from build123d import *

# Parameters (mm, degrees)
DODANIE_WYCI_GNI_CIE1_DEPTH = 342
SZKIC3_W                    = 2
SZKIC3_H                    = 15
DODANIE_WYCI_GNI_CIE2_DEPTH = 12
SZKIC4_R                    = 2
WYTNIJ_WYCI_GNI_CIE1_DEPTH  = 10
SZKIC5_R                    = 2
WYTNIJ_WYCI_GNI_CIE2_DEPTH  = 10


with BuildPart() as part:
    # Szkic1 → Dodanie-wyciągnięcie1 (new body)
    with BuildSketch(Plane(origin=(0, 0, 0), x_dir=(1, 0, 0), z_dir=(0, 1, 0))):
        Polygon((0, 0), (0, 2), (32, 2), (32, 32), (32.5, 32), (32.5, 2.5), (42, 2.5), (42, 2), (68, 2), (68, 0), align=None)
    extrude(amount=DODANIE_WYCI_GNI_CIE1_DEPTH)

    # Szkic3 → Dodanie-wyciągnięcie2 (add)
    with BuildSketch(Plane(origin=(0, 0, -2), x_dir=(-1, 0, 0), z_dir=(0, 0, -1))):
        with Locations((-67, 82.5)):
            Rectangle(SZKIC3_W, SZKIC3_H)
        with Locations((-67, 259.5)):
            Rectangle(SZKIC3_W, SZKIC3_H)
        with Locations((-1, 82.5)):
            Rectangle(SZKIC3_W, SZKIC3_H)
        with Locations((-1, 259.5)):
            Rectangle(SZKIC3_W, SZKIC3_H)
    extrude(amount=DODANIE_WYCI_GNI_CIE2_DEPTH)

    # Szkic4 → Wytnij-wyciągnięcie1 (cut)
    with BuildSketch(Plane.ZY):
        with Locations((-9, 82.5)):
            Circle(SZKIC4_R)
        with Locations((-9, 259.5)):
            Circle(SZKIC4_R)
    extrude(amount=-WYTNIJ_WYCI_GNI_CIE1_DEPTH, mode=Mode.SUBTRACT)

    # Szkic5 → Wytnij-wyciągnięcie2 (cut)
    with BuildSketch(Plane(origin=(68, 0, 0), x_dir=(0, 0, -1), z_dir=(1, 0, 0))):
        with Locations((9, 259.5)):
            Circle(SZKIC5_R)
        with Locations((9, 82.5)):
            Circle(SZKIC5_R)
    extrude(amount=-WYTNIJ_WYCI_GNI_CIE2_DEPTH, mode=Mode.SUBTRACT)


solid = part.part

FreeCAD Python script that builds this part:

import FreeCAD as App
import Part
import Sketcher
from FreeCAD import Vector
Q = App.Units.Quantity

doc = App.newDocument("Part")
params = doc.addObject("Spreadsheet::Sheet", "Params")
for row, (alias, value) in enumerate([
    ("sketch1_width", "68 mm"),
    ("sketch1_width2", "26 mm"),
    ("sketch1_width3", "32 mm"),
    ("sketch1_height", "2 mm"),
    ("sketch1_height2", "30 mm"),
    ("pad1_length", "342 mm"),
    ("sketch2_width", "2 mm"),
    ("sketch2_height", "15 mm"),
    ("pad2_length", "12 mm"),
    ("sketch3_diameter", "4 mm"),
    ("pocket1_length", "10 mm"),
    ("sketch4_diameter", "4 mm"),
    ("pocket2_length", "10 mm"),
], start=1):
    params.set(f"A{row}", alias)
    params.set(f"B{row}", "=" + value)
    params.setAlias(f"B{row}", alias)

body = doc.addObject("PartDesign::Body", "Body")

# Sketch on XZ plane
sketch1 = doc.addObject("Sketcher::SketchObject", "Sketch")
body.addObject(sketch1)
sketch1.AttachmentSupport = (doc.XZ_Plane, [""])
sketch1.MapMode = "FlatFace"
sketch1.addGeometry([
    Part.LineSegment(Vector(0, -2, 0), Vector(0, 0, 0)),  # 0
    Part.LineSegment(Vector(0, 0, 0), Vector(68, 0, 0)),  # 1
    Part.LineSegment(Vector(68, 0, 0), Vector(68, -2, 0)),  # 2
    Part.LineSegment(Vector(68, -2, 0), Vector(42, -2, 0)),  # 3
    Part.LineSegment(Vector(42, -2, 0), Vector(42, -2.5, 0)),  # 4
    Part.LineSegment(Vector(42, -2.5, 0), Vector(32.5, -2.5, 0)),  # 5
    Part.LineSegment(Vector(32.5, -2.5, 0), Vector(32.5, -32, 0)),  # 6
    Part.LineSegment(Vector(32.5, -32, 0), Vector(32, -32, 0)),  # 7
    Part.LineSegment(Vector(32, -32, 0), Vector(32, -2, 0)),  # 8
    Part.LineSegment(Vector(32, -2, 0), Vector(0, -2, 0)),  # 9
], False)
sketch1.addConstraint([
    Sketcher.Constraint("Coincident", 0, 2, 1, 1),
    Sketcher.Constraint("Coincident", 1, 2, 2, 1),
    Sketcher.Constraint("Coincident", 2, 2, 3, 1),
    Sketcher.Constraint("Coincident", 3, 2, 4, 1),
    Sketcher.Constraint("Coincident", 4, 2, 5, 1),
    Sketcher.Constraint("Coincident", 5, 2, 6, 1),
    Sketcher.Constraint("Coincident", 6, 2, 7, 1),
    Sketcher.Constraint("Coincident", 7, 2, 8, 1),
    Sketcher.Constraint("Coincident", 8, 2, 9, 1),
    Sketcher.Constraint("Coincident", 9, 2, 0, 1),
    Sketcher.Constraint("Vertical", 0),
    Sketcher.Constraint("Horizontal", 1),
    Sketcher.Constraint("Vertical", 2),
    Sketcher.Constraint("Horizontal", 3),
    Sketcher.Constraint("Vertical", 4),
    Sketcher.Constraint("Horizontal", 5),
    Sketcher.Constraint("Vertical", 6),
    Sketcher.Constraint("Horizontal", 7),
    Sketcher.Constraint("Vertical", 8),
    Sketcher.Constraint("Horizontal", 9),
    Sketcher.Constraint("Coincident", 0, 2, -1, 1),
    Sketcher.Constraint("Horizontal", 3, 2, 8, 2),
    Sketcher.Constraint("Equal", 7, 4),
    Sketcher.Constraint("DistanceX", 1, 1, 1, 2, Q("68 mm")),
    Sketcher.Constraint("DistanceX", 3, 2, 3, 1, Q("26 mm")),
    Sketcher.Constraint("DistanceX", 9, 2, 9, 1, Q("32 mm")),
    Sketcher.Constraint("DistanceY", 0, 1, 0, 2, Q("2 mm")),
    Sketcher.Constraint("DistanceY", 8, 1, 8, 2, Q("30 mm")),
    Sketcher.Constraint("DistanceX", 5, 2, 5, 1, Q("9.5 mm")),
])
sketch1.setExpression("Constraints[23]", "Params.sketch1_width")
sketch1.setExpression("Constraints[24]", "Params.sketch1_width2")
sketch1.setExpression("Constraints[25]", "Params.sketch1_width3")
sketch1.setExpression("Constraints[26]", "Params.sketch1_height")
sketch1.setExpression("Constraints[27]", "Params.sketch1_height2")
pad1 = doc.addObject("PartDesign::Pad", "Pad")
body.addObject(pad1)
pad1.Profile = sketch1
pad1.setExpression("Length", "Params.pad1_length")
pad1.Reversed = True

# Sketch on XY plane
sketch2 = doc.addObject("Sketcher::SketchObject", "Sketch001")
body.addObject(sketch2)
sketch2.AttachmentSupport = (doc.XY_Plane, [""])
sketch2.MapMode = "FlatFace"
sketch2.AttachmentOffset = App.Placement(Vector(0, 0, -2), App.Rotation())
sketch2.addGeometry([
    Part.LineSegment(Vector(68, 90, 0), Vector(68, 75, 0)),  # 0
    Part.LineSegment(Vector(68, 75, 0), Vector(66, 75, 0)),  # 1
    Part.LineSegment(Vector(66, 75, 0), Vector(66, 90, 0)),  # 2
    Part.LineSegment(Vector(66, 90, 0), Vector(68, 90, 0)),  # 3
    Part.LineSegment(Vector(68, 267, 0), Vector(68, 252, 0)),  # 4
    Part.LineSegment(Vector(68, 252, 0), Vector(66, 252, 0)),  # 5
    Part.LineSegment(Vector(66, 252, 0), Vector(66, 267, 0)),  # 6
    Part.LineSegment(Vector(66, 267, 0), Vector(68, 267, 0)),  # 7
    Part.LineSegment(Vector(2, 90, 0), Vector(2, 75, 0)),  # 8
    Part.LineSegment(Vector(2, 75, 0), Vector(0, 75, 0)),  # 9
    Part.LineSegment(Vector(0, 75, 0), Vector(0, 90, 0)),  # 10
    Part.LineSegment(Vector(0, 90, 0), Vector(2, 90, 0)),  # 11
    Part.LineSegment(Vector(2, 267, 0), Vector(2, 252, 0)),  # 12
    Part.LineSegment(Vector(2, 252, 0), Vector(0, 252, 0)),  # 13
    Part.LineSegment(Vector(0, 252, 0), Vector(0, 267, 0)),  # 14
    Part.LineSegment(Vector(0, 267, 0), Vector(2, 267, 0)),  # 15
], False)
sketch2.addConstraint([
    Sketcher.Constraint("Coincident", 0, 2, 1, 1),
    Sketcher.Constraint("Coincident", 1, 2, 2, 1),
    Sketcher.Constraint("Coincident", 2, 2, 3, 1),
    Sketcher.Constraint("Coincident", 3, 2, 0, 1),
    Sketcher.Constraint("Coincident", 4, 2, 5, 1),
    Sketcher.Constraint("Coincident", 5, 2, 6, 1),
    Sketcher.Constraint("Coincident", 6, 2, 7, 1),
    Sketcher.Constraint("Coincident", 7, 2, 4, 1),
    Sketcher.Constraint("Coincident", 8, 2, 9, 1),
    Sketcher.Constraint("Coincident", 9, 2, 10, 1),
    Sketcher.Constraint("Coincident", 10, 2, 11, 1),
    Sketcher.Constraint("Coincident", 11, 2, 8, 1),
    Sketcher.Constraint("Coincident", 12, 2, 13, 1),
    Sketcher.Constraint("Coincident", 13, 2, 14, 1),
    Sketcher.Constraint("Coincident", 14, 2, 15, 1),
    Sketcher.Constraint("Coincident", 15, 2, 12, 1),
    Sketcher.Constraint("Vertical", 0),
    Sketcher.Constraint("Horizontal", 1),
    Sketcher.Constraint("Vertical", 2),
    Sketcher.Constraint("Horizontal", 3),
    Sketcher.Constraint("Vertical", 4),
    Sketcher.Constraint("Horizontal", 5),
    Sketcher.Constraint("Vertical", 6),
    Sketcher.Constraint("Horizontal", 7),
    Sketcher.Constraint("Vertical", 8),
    Sketcher.Constraint("Horizontal", 9),
    Sketcher.Constraint("Vertical", 10),
    Sketcher.Constraint("Horizontal", 11),
    Sketcher.Constraint("Vertical", 12),
    Sketcher.Constraint("Horizontal", 13),
    Sketcher.Constraint("Vertical", 14),
    Sketcher.Constraint("Horizontal", 15),
    Sketcher.Constraint("PointOnObject", 9, 2, -2),
    Sketcher.Constraint("PointOnObject", 13, 2, -2),
    Sketcher.Constraint("Horizontal", 1, 2, 8, 2),
    Sketcher.Constraint("Horizontal", 3, 2, 10, 2),
    Sketcher.Constraint("Horizontal", 5, 2, 12, 2),
    Sketcher.Constraint("Horizontal", 7, 2, 14, 2),
    Sketcher.Constraint("Vertical", 3, 2, 4, 2),
    Sketcher.Constraint("Vertical", 2, 2, 5, 2),
    Sketcher.Constraint("Vertical", 11, 2, 12, 2),
    Sketcher.Constraint("Equal", 7, 9),
    Sketcher.Constraint("Equal", 2, 4),
    Sketcher.Constraint("DistanceX", 1, 2, 1, 1, Q("2 mm")),
    Sketcher.Constraint("DistanceY", 0, 2, 0, 1, Q("15 mm")),
    Sketcher.Constraint("DistanceX", -1, 1, 0, 2, Q("68 mm")),
    Sketcher.Constraint("DistanceY", -1, 1, 0, 2, Q("75 mm")),
    Sketcher.Constraint("DistanceY", -1, 1, 4, 2, Q("252 mm")),
])
sketch2.setExpression("Constraints[43]", "Params.sketch2_width")
sketch2.setExpression("Constraints[44]", "Params.sketch2_height")
pad2 = doc.addObject("PartDesign::Pad", "Pad001")
body.addObject(pad2)
pad2.Profile = sketch2
pad2.setExpression("Length", "Params.pad2_length")
pad2.Reversed = True

# Sketch on YZ plane
sketch3 = doc.addObject("Sketcher::SketchObject", "Sketch002")
body.addObject(sketch3)
sketch3.AttachmentSupport = (doc.YZ_Plane, [""])
sketch3.MapMode = "FlatFace"
sketch3.addGeometry([
    Part.Circle(Vector(82.5, -9, 0), Vector(0, 0, 1), 2),
    Part.Circle(Vector(259.5, -9, 0), Vector(0, 0, 1), 2),
], False)
sketch3.addConstraint([
    Sketcher.Constraint("Equal", 0, 1),
    Sketcher.Constraint("Horizontal", 0, 3, 1, 3),
    Sketcher.Constraint("Diameter", 0, Q("4 mm")),
    Sketcher.Constraint("DistanceY", 0, 3, -1, 1, Q("9 mm")),
    Sketcher.Constraint("DistanceX", 0, 3, 1, 3, Q("177 mm")),
    Sketcher.Constraint("DistanceX", -1, 1, 0, 3, Q("82.5 mm")),
])
sketch3.setExpression("Constraints[2]", "Params.sketch3_diameter")
pocket1 = doc.addObject("PartDesign::Pocket", "Pocket")
body.addObject(pocket1)
pocket1.Profile = sketch3
pocket1.setExpression("Length", "Params.pocket1_length")
pocket1.Reversed = True

# Sketch on YZ plane
sketch4 = doc.addObject("Sketcher::SketchObject", "Sketch003")
body.addObject(sketch4)
sketch4.AttachmentSupport = (doc.YZ_Plane, [""])
sketch4.MapMode = "FlatFace"
sketch4.AttachmentOffset = App.Placement(Vector(0, 0, 68), App.Rotation())
sketch4.addGeometry([
    Part.Circle(Vector(259.5, -9, 0), Vector(0, 0, 1), 2),
    Part.Circle(Vector(82.5, -9, 0), Vector(0, 0, 1), 2),
], False)
sketch4.addConstraint([
    Sketcher.Constraint("Equal", 0, 1),
    Sketcher.Constraint("Horizontal", 0, 3, 1, 3),
    Sketcher.Constraint("Diameter", 0, Q("4 mm")),
    Sketcher.Constraint("DistanceY", 0, 3, -1, 1, Q("9 mm")),
    Sketcher.Constraint("DistanceX", 1, 3, 0, 3, Q("177 mm")),
    Sketcher.Constraint("DistanceX", -1, 1, 0, 3, Q("259.5 mm")),
])
sketch4.setExpression("Constraints[2]", "Params.sketch4_diameter")
pocket2 = doc.addObject("PartDesign::Pocket", "Pocket001")
body.addObject(pocket2)
pocket2.Profile = sketch4
pocket2.setExpression("Length", "Params.pocket2_length")

doc.recompute()
